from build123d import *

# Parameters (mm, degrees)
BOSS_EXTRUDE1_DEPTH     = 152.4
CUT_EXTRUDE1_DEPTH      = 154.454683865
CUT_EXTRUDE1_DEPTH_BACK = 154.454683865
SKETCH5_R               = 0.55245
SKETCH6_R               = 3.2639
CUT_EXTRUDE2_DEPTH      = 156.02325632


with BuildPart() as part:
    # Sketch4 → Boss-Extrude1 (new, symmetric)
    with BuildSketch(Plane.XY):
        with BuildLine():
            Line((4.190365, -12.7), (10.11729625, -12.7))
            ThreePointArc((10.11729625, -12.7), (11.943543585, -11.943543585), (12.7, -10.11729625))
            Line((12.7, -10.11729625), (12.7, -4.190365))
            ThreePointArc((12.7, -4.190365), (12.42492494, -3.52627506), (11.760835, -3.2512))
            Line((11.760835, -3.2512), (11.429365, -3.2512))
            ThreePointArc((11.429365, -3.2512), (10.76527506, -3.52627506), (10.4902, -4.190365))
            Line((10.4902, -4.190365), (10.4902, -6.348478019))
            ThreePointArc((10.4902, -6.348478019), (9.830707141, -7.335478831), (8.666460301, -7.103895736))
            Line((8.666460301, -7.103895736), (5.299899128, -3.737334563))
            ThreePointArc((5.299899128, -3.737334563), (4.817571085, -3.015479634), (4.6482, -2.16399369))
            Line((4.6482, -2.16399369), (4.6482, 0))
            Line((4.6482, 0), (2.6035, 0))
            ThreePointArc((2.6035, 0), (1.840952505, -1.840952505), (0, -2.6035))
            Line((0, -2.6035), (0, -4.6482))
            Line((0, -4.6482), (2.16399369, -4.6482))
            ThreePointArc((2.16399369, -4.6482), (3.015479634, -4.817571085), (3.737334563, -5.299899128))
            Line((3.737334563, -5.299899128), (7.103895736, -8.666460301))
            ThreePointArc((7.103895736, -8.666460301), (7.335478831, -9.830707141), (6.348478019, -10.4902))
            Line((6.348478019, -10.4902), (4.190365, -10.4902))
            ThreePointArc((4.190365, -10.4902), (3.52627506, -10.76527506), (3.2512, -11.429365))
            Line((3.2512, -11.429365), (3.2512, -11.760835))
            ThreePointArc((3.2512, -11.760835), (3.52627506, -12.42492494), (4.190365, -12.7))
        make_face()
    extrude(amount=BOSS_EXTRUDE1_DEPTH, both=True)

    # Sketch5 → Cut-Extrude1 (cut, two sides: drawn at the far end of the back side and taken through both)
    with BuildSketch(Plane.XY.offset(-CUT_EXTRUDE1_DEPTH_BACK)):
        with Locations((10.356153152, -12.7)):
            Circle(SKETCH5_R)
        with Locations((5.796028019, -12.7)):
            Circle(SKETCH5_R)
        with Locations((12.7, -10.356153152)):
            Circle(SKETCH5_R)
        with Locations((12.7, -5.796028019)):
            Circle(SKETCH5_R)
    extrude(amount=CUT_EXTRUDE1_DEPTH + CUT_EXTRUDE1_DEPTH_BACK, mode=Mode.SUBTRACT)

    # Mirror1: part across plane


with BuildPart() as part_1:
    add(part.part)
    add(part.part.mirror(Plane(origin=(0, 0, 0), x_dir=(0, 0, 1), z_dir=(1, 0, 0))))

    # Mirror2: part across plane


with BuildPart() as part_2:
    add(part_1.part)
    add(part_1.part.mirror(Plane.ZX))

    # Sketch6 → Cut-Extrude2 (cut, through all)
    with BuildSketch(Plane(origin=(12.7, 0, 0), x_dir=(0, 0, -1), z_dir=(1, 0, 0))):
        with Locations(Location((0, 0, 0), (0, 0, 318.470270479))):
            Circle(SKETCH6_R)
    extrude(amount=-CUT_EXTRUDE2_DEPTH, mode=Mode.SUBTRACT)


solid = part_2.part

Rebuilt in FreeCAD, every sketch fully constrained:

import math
import FreeCAD as App
import Part
import Sketcher
Q = App.Units.Quantity

doc = App.newDocument("Part")
body = doc.addObject("PartDesign::Body", "Body")

# Sketch on XY plane
sketch1 = body.newObject("Sketcher::SketchObject", "Sketch")
sketch1.AttachmentSupport = (doc.getObject("XY_Plane"), [""])
sketch1.MapMode = "FlatFace"
sketch1.addGeometry(Part.LineSegment(App.Vector(4.19, -12.7, 0), App.Vector(10.12, -12.7, 0)), False)
sketch1.addGeometry(Part.ArcOfCircle(Part.Circle(App.Vector(10.12, -10.12, 0), App.Vector(0, 0, 1), 2.58), math.radians(-90), math.radians(0)), False)
sketch1.addGeometry(Part.LineSegment(App.Vector(12.7, -10.12, 0), App.Vector(12.7, -4.19, 0)), False)
sketch1.addGeometry(Part.ArcOfCircle(Part.Circle(App.Vector(11.76, -4.19, 0), App.Vector(0, 0, 1), 0.94), math.radians(0), math.radians(90)), False)
sketch1.addGeometry(Part.LineSegment(App.Vector(11.76, -3.25, 0), App.Vector(11.43, -3.25, 0)), False)
sketch1.addGeometry(Part.ArcOfCircle(Part.Circle(App.Vector(11.43, -4.19, 0), App.Vector(0, 0, 1), 0.94), math.radians(90), math.radians(180)), False)
sketch1.addGeometry(Part.LineSegment(App.Vector(10.49, -4.19, 0), App.Vector(10.49, -6.35, 0)), False)
sketch1.addGeometry(Part.ArcOfCircle(Part.Circle(App.Vector(9.42, -6.35, 0), App.Vector(0, 0, 1), 1.07), math.radians(-135), math.radians(0)), False)
sketch1.addGeometry(Part.LineSegment(App.Vector(8.67, -7.1, 0), App.Vector(5.3, -3.74, 0)), False)
sketch1.addGeometry(Part.ArcOfCircle(Part.Circle(App.Vector(6.87, -2.16, 0), App.Vector(0, 0, 1), 2.23), math.radians(-180), math.radians(-135)), False)
sketch1.addGeometry(Part.LineSegment(App.Vector(4.65, -2.16, 0), App.Vector(4.65, 0, 0)), False)
sketch1.addGeometry(Part.LineSegment(App.Vector(4.65, 0, 0), App.Vector(2.6, 0, 0)), False)
sketch1.addGeometry(Part.ArcOfCircle(Part.Circle(App.Vector(0, 0, 0), App.Vector(0, 0, 1), 2.6), math.radians(-90), math.radians(0)), False)
sketch1.addGeometry(Part.LineSegment(App.Vector(0, -2.6, 0), App.Vector(0, -4.65, 0)), False)
sketch1.addGeometry(Part.LineSegment(App.Vector(0, -4.65, 0), App.Vector(2.16, -4.65, 0)), False)
sketch1.addGeometry(Part.ArcOfCircle(Part.Circle(App.Vector(2.16, -6.87, 0), App.Vector(0, 0, 1), 2.23), math.radians(45), math.radians(90)), False)
sketch1.addGeometry(Part.LineSegment(App.Vector(3.74, -5.3, 0), App.Vector(7.1, -8.67, 0)), False)
sketch1.addGeometry(Part.ArcOfCircle(Part.Circle(App.Vector(6.35, -9.42, 0), App.Vector(0, 0, 1), 1.07), math.radians(-90), math.radians(45)), False)
sketch1.addGeometry(Part.LineSegment(App.Vector(6.35, -10.49, 0), App.Vector(4.19, -10.49, 0)), False)
sketch1.addGeometry(Part.ArcOfCircle(Part.Circle(App.Vector(4.19, -11.43, 0), App.Vector(0, 0, 1), 0.94), math.radians(90), math.radians(180)), False)
sketch1.addGeometry(Part.LineSegment(App.Vector(3.25, -11.43, 0), App.Vector(3.25, -11.76, 0)), False)
sketch1.addGeometry(Part.ArcOfCircle(Part.Circle(App.Vector(4.19, -11.76, 0), App.Vector(0, 0, 1), 0.94), math.radians(-180), math.radians(-90)), False)
sketch1.addConstraint(Sketcher.Constraint("Tangent", 0, 2, 1, 1))
sketch1.addConstraint(Sketcher.Constraint("Tangent", 1, 2, 2, 1))
sketch1.addConstraint(Sketcher.Constraint("Tangent", 2, 2, 3, 1))
sketch1.addConstraint(Sketcher.Constraint("Tangent", 3, 2, 4, 1))
sketch1.addConstraint(Sketcher.Constraint("Tangent", 4, 2, 5, 1))
sketch1.addConstraint(Sketcher.Constraint("Tangent", 5, 2, 6, 1))
sketch1.addConstraint(Sketcher.Constraint("Tangent", 6, 2, 7, 2))
sketch1.addConstraint(Sketcher.Constraint("Tangent", 7, 1, 8, 1))
sketch1.addConstraint(Sketcher.Constraint("Tangent", 8, 2, 9, 2))
sketch1.addConstraint(Sketcher.Constraint("Tangent", 9, 1, 10, 1))
sketch1.addConstraint(Sketcher.Constraint("Coincident", 10, 2, 11, 1))
sketch1.addConstraint(Sketcher.Constraint("Coincident", 11, 2, 12, 2))
sketch1.addConstraint(Sketcher.Constraint("Coincident", 12, 1, 13, 1))
sketch1.addConstraint(Sketcher.Constraint("Coincident", 13, 2, 14, 1))
sketch1.addConstraint(Sketcher.Constraint("Tangent", 14, 2, 15, 2))
sketch1.addConstraint(Sketcher.Constraint("Tangent", 15, 1, 16, 1))
sketch1.addConstraint(Sketcher.Constraint("Tangent", 16, 2, 17, 2))
sketch1.addConstraint(Sketcher.Constraint("Tangent", 17, 1, 18, 1))
sketch1.addConstraint(Sketcher.Constraint("Tangent", 18, 2, 19, 1))
sketch1.addConstraint(Sketcher.Constraint("Tangent", 19, 2, 20, 1))
sketch1.addConstraint(Sketcher.Constraint("Tangent", 20, 2, 21, 1))
sketch1.addConstraint(Sketcher.Constraint("Tangent", 21, 2, 0, 1))
sketch1.addConstraint(Sketcher.Constraint("Horizontal", 0))
sketch1.addConstraint(Sketcher.Constraint("Vertical", 2))
sketch1.addConstraint(Sketcher.Constraint("Horizontal", 4))
sketch1.addConstraint(Sketcher.Constraint("Vertical", 6))
sketch1.addConstraint(Sketcher.Constraint("Vertical", 10))
sketch1.addConstraint(Sketcher.Constraint("Horizontal", 11))
sketch1.addConstraint(Sketcher.Constraint("Vertical", 13))
sketch1.addConstraint(Sketcher.Constraint("Horizontal", 14))
sketch1.addConstraint(Sketcher.Constraint("Horizontal", 18))
sketch1.addConstraint(Sketcher.Constraint("Vertical", 20))
sketch1.addConstraint(Sketcher.Constraint("Coincident", 12, 3, -1, 1))
sketch1.addConstraint(Sketcher.Constraint("Equal", 3, 5))
sketch1.addConstraint(Sketcher.Constraint("Equal", 9, 15))
sketch1.addConstraint(Sketcher.Constraint("Equal", 7, 17))
sketch1.addConstraint(Sketcher.Constraint("Equal", 5, 19))
sketch1.addConstraint(Sketcher.Constraint("Equal", 19, 21))
sketch1.addConstraint(Sketcher.Constraint("PointOnObject", 10, 2, -1))
sketch1.addConstraint(Sketcher.Constraint("PointOnObject", 12, 1, -2))
sketch1.addConstraint(Sketcher.Constraint("Parallel", 8, 16))
sketch1.addConstraint(Sketcher.Constraint("Equal", 0, 2))
sketch1.addConstraint(Sketcher.Constraint("Equal", 18, 6))
sketch1.addConstraint(Sketcher.Constraint("Equal", 14, 10))
sketch1.addConstraint(Sketcher.Constraint("Equal", 11, 13))
sketch1.addConstraint(Sketcher.Constraint("Equal", 4, 20))
sketch1.addConstraint(Sketcher.Constraint("Equal", 8, 16))
sketch1.addConstraint(Sketcher.Constraint("DistanceY", 0, 2, -1, 1, Q("0.5 in")))
sketch1.addConstraint(Sketcher.Constraint("Radius", 9, Q("0.0876 in")))
sketch1.addConstraint(Sketcher.Constraint("Radius", 12, Q("0.1025 in")))
sketch1.addConstraint(Sketcher.Constraint("DistanceX", 9, 1, 5, 2, Q("0.23 in")))
sketch1.addConstraint(Sketcher.Constraint("DistanceX", 11, 2, 11, 1, Q("0.0805 in")))
sketch1.addConstraint(Sketcher.Constraint("DistanceY", 3, 2, -1, 1, Q("0.128 in")))
sketch1.addConstraint(Sketcher.Constraint("Radius", 7, Q("1.068322 mm")))
sketch1.addConstraint(Sketcher.Constraint("DistanceX", 17, 3, 7, 3, Q("0.121 in")))
sketch1.addConstraint(Sketcher.Constraint("Radius", 1, Q("2.582704 mm")))
sketch1.addConstraint(Sketcher.Constraint("Radius", 3, Q("0.939165 mm")))
pad1 = body.newObject("PartDesign::Pad", "Pad")
pad1.Profile = sketch1
pad1.Length = Q("12 in")
pad1.Midplane = True

# Sketch on XY plane
sketch2 = body.newObject("Sketcher::SketchObject", "Sketch001")
sketch2.AttachmentSupport = (doc.getObject("XY_Plane"), [""])
sketch2.MapMode = "FlatFace"
sketch2.addGeometry(Part.Circle(App.Vector(10.4, -12.7, 0), App.Vector(0, 0, 1), 0.6), False)
sketch2.addGeometry(Part.Circle(App.Vector(5.8, -12.7, 0), App.Vector(0, 0, 1), 0.6), False)
sketch2.addGeometry(Part.Circle(App.Vector(12.7, -10.4, 0), App.Vector(0, 0, 1), 0.6), False)
sketch2.addGeometry(Part.Circle(App.Vector(12.7, -5.8, 0), App.Vector(0, 0, 1), 0.6), False)
sketch2.addConstraint(Sketcher.Constraint("Equal", 0, 1))
sketch2.addConstraint(Sketcher.Constraint("Equal", 1, 2))
sketch2.addConstraint(Sketcher.Constraint("Equal", 2, 3))
sketch2.addConstraint(Sketcher.Constraint("Horizontal", 0, 3, 1, 3))
sketch2.addConstraint(Sketcher.Constraint("Vertical", 2, 3, 3, 3))
sketch2.addConstraint(Sketcher.Constraint("Diameter", 0, Q("0.0435 in")))
sketch2.addConstraint(Sketcher.Constraint("DistanceY", 0, 3, -1, 1, Q("0.5 in")))
sketch2.addConstraint(Sketcher.Constraint("DistanceX", -1, 1, 2, 3, Q("0.5 in")))
sketch2.addConstraint(Sketcher.Constraint("DistanceX", -1, 1, 1, 3, Q("5.796028 mm")))
sketch2.addConstraint(Sketcher.Constraint("DistanceY", 3, 3, -1, 1, Q("5.796028 mm")))
sketch2.addConstraint(Sketcher.Constraint("DistanceX", -1, 1, 0, 3, Q("10.356153 mm")))
sketch2.addConstraint(Sketcher.Constraint("DistanceY", 2, 3, -1, 1, Q("10.356153 mm")))
pocket1 = body.newObject("PartDesign::Pocket", "Pocket")
pocket1.Profile = sketch2
pocket1.Type = "ThroughAll"
pocket1.Midplane = True
body2 = doc.addObject("PartDesign::Body", "Body001")
doc.recompute()

body2.BaseFeature = body
doc.recompute()

mirroring = doc.addObject("Part::Mirroring", "Mirroring")
mirroring.Source = body
mirroring.Base = App.Vector(0, 0, 0)
mirroring.Normal = App.Vector(1, 0, 0)
body3 = doc.addObject("PartDesign::Body", "Body002")
body3.BaseFeature = mirroring
boolean = body2.newObject("PartDesign::Boolean", "Boolean")
boolean.Type = "Fuse"
boolean.addObjects([body3])
doc.recompute()
body4 = doc.addObject("PartDesign::Body", "Body003")
doc.recompute()

body4.BaseFeature = body2
doc.recompute()

mirroring2 = doc.addObject("Part::Mirroring", "Mirroring001")
mirroring2.Source = body2
mirroring2.Base = App.Vector(0, 0, 0)
mirroring2.Normal = App.Vector(0, 1, 0)
body5 = doc.addObject("PartDesign::Body", "Body004")
body5.BaseFeature = mirroring2
boolean2 = body4.newObject("PartDesign::Boolean", "Boolean001")
boolean2.Type = "Fuse"
boolean2.addObjects([body5])
doc.recompute()

# Sketch on YZ plane
sketch3 = body4.newObject("Sketcher::SketchObject", "Sketch002")
sketch3.AttachmentSupport = (doc.getObject("YZ_Plane003"), [""])
sketch3.MapMode = "FlatFace"
sketch3.AttachmentOffset = App.Placement(App.Vector(0, 0, 0.5 * 25.4), App.Rotation())
sketch3.addGeometry(Part.Circle(App.Vector(0, 0, 0), App.Vector(0, 0, 1), 3.3), False)
sketch3.addConstraint(Sketcher.Constraint("Coincident", 0, 3, -1, 1))
sketch3.addConstraint(Sketcher.Constraint("Diameter", 0, Q("0.257 in")))
pocket2 = body4.newObject("PartDesign::Pocket", "Pocket001")
pocket2.Profile = sketch3
pocket2.Type = "ThroughAll"
mirroring.Visibility = False
mirroring2.Visibility = False

doc.recompute()
